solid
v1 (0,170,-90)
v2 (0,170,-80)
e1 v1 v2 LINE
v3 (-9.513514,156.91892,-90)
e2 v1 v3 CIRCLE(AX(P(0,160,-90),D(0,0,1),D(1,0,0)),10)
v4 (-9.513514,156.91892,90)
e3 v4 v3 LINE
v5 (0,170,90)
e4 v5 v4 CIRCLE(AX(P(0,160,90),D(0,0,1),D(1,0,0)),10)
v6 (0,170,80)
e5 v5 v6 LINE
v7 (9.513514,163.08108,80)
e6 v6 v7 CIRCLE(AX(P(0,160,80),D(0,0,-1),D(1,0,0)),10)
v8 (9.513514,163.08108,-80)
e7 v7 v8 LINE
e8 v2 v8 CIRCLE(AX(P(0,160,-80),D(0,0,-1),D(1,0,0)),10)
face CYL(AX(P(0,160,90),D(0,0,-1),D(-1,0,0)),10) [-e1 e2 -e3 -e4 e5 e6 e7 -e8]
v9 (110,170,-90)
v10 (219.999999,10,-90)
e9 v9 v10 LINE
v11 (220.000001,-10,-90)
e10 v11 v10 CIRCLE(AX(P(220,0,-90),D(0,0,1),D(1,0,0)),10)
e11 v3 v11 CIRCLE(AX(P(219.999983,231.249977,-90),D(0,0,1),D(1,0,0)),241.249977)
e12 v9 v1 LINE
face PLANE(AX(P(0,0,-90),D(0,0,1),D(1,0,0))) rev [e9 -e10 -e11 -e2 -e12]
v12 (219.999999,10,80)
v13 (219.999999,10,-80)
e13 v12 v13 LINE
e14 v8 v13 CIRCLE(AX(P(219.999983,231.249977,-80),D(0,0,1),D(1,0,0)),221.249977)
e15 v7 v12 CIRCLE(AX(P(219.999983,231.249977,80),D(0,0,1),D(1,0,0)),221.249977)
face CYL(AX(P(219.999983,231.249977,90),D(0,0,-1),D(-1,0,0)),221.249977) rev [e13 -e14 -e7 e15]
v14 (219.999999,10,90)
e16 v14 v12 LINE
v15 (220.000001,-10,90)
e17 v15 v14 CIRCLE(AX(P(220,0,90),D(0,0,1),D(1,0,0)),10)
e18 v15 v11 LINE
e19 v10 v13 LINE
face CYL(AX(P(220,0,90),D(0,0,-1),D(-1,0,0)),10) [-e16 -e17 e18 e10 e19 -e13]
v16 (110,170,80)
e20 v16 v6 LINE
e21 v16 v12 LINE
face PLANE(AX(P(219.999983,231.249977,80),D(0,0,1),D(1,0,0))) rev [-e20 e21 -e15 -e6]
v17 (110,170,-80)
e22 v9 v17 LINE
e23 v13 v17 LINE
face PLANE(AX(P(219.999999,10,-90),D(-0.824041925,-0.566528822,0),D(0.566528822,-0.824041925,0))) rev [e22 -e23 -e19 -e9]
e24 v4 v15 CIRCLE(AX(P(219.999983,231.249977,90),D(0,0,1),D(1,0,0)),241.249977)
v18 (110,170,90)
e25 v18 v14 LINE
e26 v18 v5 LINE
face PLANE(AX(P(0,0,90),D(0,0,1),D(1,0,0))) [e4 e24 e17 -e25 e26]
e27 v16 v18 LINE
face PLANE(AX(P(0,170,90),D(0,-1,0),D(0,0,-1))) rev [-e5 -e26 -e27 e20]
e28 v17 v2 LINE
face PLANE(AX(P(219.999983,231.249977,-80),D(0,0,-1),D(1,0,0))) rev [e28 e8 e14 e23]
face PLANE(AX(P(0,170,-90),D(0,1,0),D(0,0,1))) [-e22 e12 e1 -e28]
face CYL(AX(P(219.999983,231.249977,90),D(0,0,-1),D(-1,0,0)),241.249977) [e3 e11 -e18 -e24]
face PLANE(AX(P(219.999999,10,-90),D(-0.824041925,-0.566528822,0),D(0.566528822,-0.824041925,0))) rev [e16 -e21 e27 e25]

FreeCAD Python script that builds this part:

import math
import FreeCAD as App
import Part
import Sketcher
Q = App.Units.Quantity


def add_polygon(sketch, points):
    """Adds a closed chain of lines whose ends are joined by coincident constraints."""
    first, n = sketch.GeometryCount, len(points)
    for a, b in zip(points, points[1:] + points[:1]):
        sketch.addGeometry(Part.LineSegment(App.Vector(*a, 0), App.Vector(*b, 0)), False)
    for i in range(n):
        sketch.addConstraint(Sketcher.Constraint("Coincident", first + i, 2, first + (i + 1) % n, 1))

doc = App.newDocument("Part")
body = doc.addObject("PartDesign::Body", "Body")

# Sketch on XY plane
sketch1 = doc.addObject("Sketcher::SketchObject", "Sketch")
body.addObject(sketch1)
sketch1.AttachmentSupport = (doc.XY_Plane, [""])
sketch1.MapMode = "FlatFace"
sketch1.addGeometry([
    Part.ArcOfCircle(Part.Circle(App.Vector(220, 231, 0), App.Vector(0, 0, 1), 241), math.radians(-162), math.radians(-90)),
    Part.ArcOfCircle(Part.Circle(App.Vector(220, 0, 0), App.Vector(0, 0, 1), 10), math.radians(-90), math.radians(90)),
    Part.ArcOfCircle(Part.Circle(App.Vector(220, 231, 0), App.Vector(0, 0, 1), 221), math.radians(-162), math.radians(-90)),
    Part.ArcOfCircle(Part.Circle(App.Vector(0, 160, 0), App.Vector(0, 0, 1), 10), math.radians(18), math.radians(198)),
], False)
sketch1.addConstraint([
    Sketcher.Constraint("Tangent", 0, 2, 1, 1),
    Sketcher.Constraint("Tangent", 1, 2, 2, 2),
    Sketcher.Constraint("Tangent", 2, 1, 3, 1),
    Sketcher.Constraint("Tangent", 3, 2, 0, 1),
    Sketcher.Constraint("Coincident", 2, 3, 0, 3),
    Sketcher.Constraint("PointOnObject", 1, 3, -1),
    Sketcher.Constraint("PointOnObject", 3, 3, -2),
    Sketcher.Constraint("Radius", 1, Q("10 mm")),
    Sketcher.Constraint("DistanceX", -1, 1, 1, 3, Q("220 mm")),
    Sketcher.Constraint("DistanceY", -1, 1, 3, 3, Q("160 mm")),
    Sketcher.Constraint("Radius", 0, Q("241.249977 mm")),
])
pad1 = doc.addObject("PartDesign::Pad", "Pad")
body.addObject(pad1)
pad1.Profile = sketch1
pad1.Length = 180
pad1.Midplane = True

# Sketch on XY plane
sketch2 = doc.addObject("Sketcher::SketchObject", "Sketch001")
body.addObject(sketch2)
sketch2.AttachmentSupport = (doc.XY_Plane, [""])
sketch2.MapMode = "FlatFace"
sketch2.AttachmentOffset = App.Placement(App.Vector(0, 0, 80), App.Rotation())
sketch2.addGeometry([
    Part.LineSegment(App.Vector(220, 170, 0), App.Vector(0, 170, 0)),
    Part.ArcOfCircle(Part.Circle(App.Vector(0, 160, 0), App.Vector(0, 0, 1), 10), math.radians(18), math.radians(90)),
    Part.ArcOfCircle(Part.Circle(App.Vector(220, 231, 0), App.Vector(0, 0, 1), 221), math.radians(-162), math.radians(-90)),
    Part.LineSegment(App.Vector(220, 10, 0), App.Vector(220, 170, 0)),
], False)
sketch2.addConstraint([
    Sketcher.Constraint("Tangent", 0, 2, 1, 2),
    Sketcher.Constraint("Tangent", 1, 1, 2, 1),
    Sketcher.Constraint("Coincident", 2, 2, 3, 1),
    Sketcher.Constraint("Coincident", 3, 2, 0, 1),
    Sketcher.Constraint("Horizontal", 0),
    Sketcher.Constraint("Vertical", 3),
    Sketcher.Constraint("PointOnObject", 1, 3, -2),
    Sketcher.Constraint("Radius", 1, Q("10 mm")),
    Sketcher.Constraint("DistanceX", 0, 2, 0, 1, Q("219.999999 mm")),
    Sketcher.Constraint("DistanceY", 3, 1, 3, 2, Q("160 mm")),
    Sketcher.Constraint("DistanceY", -1, 1, 1, 3, Q("160 mm")),
    Sketcher.Constraint("Radius", 2, Q("221.249977 mm")),
])
pad2 = doc.addObject("PartDesign::Pad", "Pad001")
body.addObject(pad2)
pad2.Profile = sketch2
pad2.Length = 10
doc.recompute()

mirrored = doc.addObject("PartDesign::Mirrored", "Mirrored")
body.addObject(mirrored)
mirrored.Originals = [pad2]
mirrored.MirrorPlane = (doc.XY_Plane, [""])
body.Tip = mirrored

# Sketch on XY plane
sketch3 = doc.addObject("Sketcher::SketchObject", "Sketch002")
body.addObject(sketch3)
sketch3.AttachmentSupport = (doc.XY_Plane, [""])
sketch3.MapMode = "FlatFace"
sketch3.AttachmentOffset = App.Placement(App.Vector(0, 0, 90), App.Rotation())
add_polygon(sketch3, [(110, 170), (220, 10), (220, 170)])  # lines 0-2
sketch3.addConstraint([
    Sketcher.Constraint("Vertical", 1),
    Sketcher.Constraint("Horizontal", 2),
    Sketcher.Constraint("DistanceX", 2, 2, 2, 1, Q("110 mm")),
    Sketcher.Constraint("DistanceY", 1, 1, 1, 2, Q("160 mm")),
    Sketcher.Constraint("DistanceX", -1, 1, 0, 2, Q("219.999999 mm")),
    Sketcher.Constraint("DistanceY", -1, 1, 0, 2, Q("10 mm")),
])
pocket1 = doc.addObject("PartDesign::Pocket", "Pocket")
body.addObject(pocket1)
pocket1.Profile = sketch3
pocket1.Type = "ThroughAll"

doc.recompute()
